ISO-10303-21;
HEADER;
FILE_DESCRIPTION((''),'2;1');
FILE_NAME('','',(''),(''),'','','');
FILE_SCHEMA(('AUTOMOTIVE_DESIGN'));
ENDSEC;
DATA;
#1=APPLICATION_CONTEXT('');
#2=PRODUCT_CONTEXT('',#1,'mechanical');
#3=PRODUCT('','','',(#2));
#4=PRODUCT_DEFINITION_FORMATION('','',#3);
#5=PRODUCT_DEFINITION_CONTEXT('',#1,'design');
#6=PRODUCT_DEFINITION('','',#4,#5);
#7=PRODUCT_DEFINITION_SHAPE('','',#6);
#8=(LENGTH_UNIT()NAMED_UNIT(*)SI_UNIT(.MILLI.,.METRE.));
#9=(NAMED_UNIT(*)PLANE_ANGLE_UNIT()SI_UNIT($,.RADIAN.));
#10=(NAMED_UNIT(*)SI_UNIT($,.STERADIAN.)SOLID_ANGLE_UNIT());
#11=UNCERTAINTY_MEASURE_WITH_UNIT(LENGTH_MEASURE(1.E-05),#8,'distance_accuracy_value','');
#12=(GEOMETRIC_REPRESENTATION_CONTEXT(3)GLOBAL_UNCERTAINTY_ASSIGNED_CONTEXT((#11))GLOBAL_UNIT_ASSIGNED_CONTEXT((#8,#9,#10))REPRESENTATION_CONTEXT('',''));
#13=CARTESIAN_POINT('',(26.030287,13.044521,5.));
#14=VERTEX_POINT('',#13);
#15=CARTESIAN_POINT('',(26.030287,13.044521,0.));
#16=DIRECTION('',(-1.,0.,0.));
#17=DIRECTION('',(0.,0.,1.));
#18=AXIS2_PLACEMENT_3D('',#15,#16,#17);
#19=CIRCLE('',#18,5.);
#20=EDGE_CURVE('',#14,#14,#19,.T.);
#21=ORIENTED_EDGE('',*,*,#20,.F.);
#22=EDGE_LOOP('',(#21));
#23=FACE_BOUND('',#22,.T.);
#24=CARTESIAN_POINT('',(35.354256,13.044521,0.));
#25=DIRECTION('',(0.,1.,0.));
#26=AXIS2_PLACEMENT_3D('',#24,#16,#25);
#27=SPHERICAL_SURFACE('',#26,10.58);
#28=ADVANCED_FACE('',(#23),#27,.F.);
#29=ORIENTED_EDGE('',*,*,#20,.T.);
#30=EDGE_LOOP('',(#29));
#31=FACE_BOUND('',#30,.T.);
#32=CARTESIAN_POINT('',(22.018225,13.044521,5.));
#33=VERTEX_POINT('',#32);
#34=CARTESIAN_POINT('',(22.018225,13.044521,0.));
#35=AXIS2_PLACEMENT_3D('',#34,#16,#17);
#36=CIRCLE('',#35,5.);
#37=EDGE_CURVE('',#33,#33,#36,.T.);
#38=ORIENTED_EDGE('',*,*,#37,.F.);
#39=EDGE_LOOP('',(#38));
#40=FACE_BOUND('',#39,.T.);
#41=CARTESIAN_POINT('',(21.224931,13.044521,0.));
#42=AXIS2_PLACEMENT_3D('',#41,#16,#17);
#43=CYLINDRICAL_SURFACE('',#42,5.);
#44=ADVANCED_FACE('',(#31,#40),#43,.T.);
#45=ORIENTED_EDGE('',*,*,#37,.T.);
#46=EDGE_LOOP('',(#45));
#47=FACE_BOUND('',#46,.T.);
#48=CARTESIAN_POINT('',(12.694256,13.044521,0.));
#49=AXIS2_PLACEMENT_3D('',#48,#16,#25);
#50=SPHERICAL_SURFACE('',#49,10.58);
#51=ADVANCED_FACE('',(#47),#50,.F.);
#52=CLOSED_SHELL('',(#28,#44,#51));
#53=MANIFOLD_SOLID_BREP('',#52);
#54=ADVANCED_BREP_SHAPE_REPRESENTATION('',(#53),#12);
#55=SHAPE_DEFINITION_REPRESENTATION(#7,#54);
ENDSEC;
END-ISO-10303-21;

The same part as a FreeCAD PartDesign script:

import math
import FreeCAD as App
import Part
import Sketcher

V = App.Vector

doc = App.newDocument("Part")
body = doc.addObject("PartDesign::Body", "Body")

sketch1 = body.newObject("Sketcher::SketchObject", "Sketch")
sketch1.AttachmentSupport = (doc.getObject("XY_Plane"), [""])
sketch1.MapMode = "FlatFace"
sketch1.addGeometry([
    Part.LineSegment(V(23.274256, 13.044521, 0), V(24.774256, 13.044521, 0)),
    Part.ArcOfCircle(Part.Circle(V(35.354256, 13.044521, 0), V(0, 0, 1), 10.58), math.radians(151.797463), math.radians(180)),
    Part.LineSegment(V(26.030287, 18.044521, 0), V(22.018225, 18.044521, 0)),
    Part.ArcOfCircle(Part.Circle(V(12.694256, 13.044521, 0), V(0, 0, 1), 10.58), math.radians(0), math.radians(28.202537)),
], False)
sketch1.addGeometry(Part.LineSegment(V(12.694256, 13.044521, 0), V(35.354256, 13.044521, 0)), True)
sketch1.addConstraint([
    Sketcher.Constraint("Coincident", 0, 2, 1, 2),
    Sketcher.Constraint("Coincident", 1, 1, 2, 1),
    Sketcher.Constraint("Coincident", 2, 2, 3, 2),
    Sketcher.Constraint("Coincident", 3, 1, 0, 1),
    Sketcher.Constraint("Horizontal", 0),
    Sketcher.Constraint("Horizontal", 2),
    Sketcher.Constraint("Horizontal", 4),
    Sketcher.Constraint("Coincident", 4, 1, 3, 3),
    Sketcher.Constraint("Coincident", 4, 2, 1, 3),
    Sketcher.Constraint("Equal", 1, 3),
    Sketcher.Constraint("Horizontal", 3, 3, 0, 2),
    Sketcher.Constraint("Radius", 1, 10.58),
    Sketcher.Constraint("DistanceX", 0, 1, 0, 2, 1.5),
    Sketcher.Constraint("DistanceY", 0, 2, 1, 1, 5.0),
    Sketcher.Constraint("DistanceY", -1, 1, 1, 3, 13.044521),
    Sketcher.Constraint("DistanceX", -1, 1, 1, 3, 35.354256),
])
revolution = body.newObject("PartDesign::Revolution", "Revolution")
revolution.Profile = sketch1
revolution.ReferenceAxis = (sketch1, ["Axis0"])
revolution.Angle = 360

doc.recompute()
